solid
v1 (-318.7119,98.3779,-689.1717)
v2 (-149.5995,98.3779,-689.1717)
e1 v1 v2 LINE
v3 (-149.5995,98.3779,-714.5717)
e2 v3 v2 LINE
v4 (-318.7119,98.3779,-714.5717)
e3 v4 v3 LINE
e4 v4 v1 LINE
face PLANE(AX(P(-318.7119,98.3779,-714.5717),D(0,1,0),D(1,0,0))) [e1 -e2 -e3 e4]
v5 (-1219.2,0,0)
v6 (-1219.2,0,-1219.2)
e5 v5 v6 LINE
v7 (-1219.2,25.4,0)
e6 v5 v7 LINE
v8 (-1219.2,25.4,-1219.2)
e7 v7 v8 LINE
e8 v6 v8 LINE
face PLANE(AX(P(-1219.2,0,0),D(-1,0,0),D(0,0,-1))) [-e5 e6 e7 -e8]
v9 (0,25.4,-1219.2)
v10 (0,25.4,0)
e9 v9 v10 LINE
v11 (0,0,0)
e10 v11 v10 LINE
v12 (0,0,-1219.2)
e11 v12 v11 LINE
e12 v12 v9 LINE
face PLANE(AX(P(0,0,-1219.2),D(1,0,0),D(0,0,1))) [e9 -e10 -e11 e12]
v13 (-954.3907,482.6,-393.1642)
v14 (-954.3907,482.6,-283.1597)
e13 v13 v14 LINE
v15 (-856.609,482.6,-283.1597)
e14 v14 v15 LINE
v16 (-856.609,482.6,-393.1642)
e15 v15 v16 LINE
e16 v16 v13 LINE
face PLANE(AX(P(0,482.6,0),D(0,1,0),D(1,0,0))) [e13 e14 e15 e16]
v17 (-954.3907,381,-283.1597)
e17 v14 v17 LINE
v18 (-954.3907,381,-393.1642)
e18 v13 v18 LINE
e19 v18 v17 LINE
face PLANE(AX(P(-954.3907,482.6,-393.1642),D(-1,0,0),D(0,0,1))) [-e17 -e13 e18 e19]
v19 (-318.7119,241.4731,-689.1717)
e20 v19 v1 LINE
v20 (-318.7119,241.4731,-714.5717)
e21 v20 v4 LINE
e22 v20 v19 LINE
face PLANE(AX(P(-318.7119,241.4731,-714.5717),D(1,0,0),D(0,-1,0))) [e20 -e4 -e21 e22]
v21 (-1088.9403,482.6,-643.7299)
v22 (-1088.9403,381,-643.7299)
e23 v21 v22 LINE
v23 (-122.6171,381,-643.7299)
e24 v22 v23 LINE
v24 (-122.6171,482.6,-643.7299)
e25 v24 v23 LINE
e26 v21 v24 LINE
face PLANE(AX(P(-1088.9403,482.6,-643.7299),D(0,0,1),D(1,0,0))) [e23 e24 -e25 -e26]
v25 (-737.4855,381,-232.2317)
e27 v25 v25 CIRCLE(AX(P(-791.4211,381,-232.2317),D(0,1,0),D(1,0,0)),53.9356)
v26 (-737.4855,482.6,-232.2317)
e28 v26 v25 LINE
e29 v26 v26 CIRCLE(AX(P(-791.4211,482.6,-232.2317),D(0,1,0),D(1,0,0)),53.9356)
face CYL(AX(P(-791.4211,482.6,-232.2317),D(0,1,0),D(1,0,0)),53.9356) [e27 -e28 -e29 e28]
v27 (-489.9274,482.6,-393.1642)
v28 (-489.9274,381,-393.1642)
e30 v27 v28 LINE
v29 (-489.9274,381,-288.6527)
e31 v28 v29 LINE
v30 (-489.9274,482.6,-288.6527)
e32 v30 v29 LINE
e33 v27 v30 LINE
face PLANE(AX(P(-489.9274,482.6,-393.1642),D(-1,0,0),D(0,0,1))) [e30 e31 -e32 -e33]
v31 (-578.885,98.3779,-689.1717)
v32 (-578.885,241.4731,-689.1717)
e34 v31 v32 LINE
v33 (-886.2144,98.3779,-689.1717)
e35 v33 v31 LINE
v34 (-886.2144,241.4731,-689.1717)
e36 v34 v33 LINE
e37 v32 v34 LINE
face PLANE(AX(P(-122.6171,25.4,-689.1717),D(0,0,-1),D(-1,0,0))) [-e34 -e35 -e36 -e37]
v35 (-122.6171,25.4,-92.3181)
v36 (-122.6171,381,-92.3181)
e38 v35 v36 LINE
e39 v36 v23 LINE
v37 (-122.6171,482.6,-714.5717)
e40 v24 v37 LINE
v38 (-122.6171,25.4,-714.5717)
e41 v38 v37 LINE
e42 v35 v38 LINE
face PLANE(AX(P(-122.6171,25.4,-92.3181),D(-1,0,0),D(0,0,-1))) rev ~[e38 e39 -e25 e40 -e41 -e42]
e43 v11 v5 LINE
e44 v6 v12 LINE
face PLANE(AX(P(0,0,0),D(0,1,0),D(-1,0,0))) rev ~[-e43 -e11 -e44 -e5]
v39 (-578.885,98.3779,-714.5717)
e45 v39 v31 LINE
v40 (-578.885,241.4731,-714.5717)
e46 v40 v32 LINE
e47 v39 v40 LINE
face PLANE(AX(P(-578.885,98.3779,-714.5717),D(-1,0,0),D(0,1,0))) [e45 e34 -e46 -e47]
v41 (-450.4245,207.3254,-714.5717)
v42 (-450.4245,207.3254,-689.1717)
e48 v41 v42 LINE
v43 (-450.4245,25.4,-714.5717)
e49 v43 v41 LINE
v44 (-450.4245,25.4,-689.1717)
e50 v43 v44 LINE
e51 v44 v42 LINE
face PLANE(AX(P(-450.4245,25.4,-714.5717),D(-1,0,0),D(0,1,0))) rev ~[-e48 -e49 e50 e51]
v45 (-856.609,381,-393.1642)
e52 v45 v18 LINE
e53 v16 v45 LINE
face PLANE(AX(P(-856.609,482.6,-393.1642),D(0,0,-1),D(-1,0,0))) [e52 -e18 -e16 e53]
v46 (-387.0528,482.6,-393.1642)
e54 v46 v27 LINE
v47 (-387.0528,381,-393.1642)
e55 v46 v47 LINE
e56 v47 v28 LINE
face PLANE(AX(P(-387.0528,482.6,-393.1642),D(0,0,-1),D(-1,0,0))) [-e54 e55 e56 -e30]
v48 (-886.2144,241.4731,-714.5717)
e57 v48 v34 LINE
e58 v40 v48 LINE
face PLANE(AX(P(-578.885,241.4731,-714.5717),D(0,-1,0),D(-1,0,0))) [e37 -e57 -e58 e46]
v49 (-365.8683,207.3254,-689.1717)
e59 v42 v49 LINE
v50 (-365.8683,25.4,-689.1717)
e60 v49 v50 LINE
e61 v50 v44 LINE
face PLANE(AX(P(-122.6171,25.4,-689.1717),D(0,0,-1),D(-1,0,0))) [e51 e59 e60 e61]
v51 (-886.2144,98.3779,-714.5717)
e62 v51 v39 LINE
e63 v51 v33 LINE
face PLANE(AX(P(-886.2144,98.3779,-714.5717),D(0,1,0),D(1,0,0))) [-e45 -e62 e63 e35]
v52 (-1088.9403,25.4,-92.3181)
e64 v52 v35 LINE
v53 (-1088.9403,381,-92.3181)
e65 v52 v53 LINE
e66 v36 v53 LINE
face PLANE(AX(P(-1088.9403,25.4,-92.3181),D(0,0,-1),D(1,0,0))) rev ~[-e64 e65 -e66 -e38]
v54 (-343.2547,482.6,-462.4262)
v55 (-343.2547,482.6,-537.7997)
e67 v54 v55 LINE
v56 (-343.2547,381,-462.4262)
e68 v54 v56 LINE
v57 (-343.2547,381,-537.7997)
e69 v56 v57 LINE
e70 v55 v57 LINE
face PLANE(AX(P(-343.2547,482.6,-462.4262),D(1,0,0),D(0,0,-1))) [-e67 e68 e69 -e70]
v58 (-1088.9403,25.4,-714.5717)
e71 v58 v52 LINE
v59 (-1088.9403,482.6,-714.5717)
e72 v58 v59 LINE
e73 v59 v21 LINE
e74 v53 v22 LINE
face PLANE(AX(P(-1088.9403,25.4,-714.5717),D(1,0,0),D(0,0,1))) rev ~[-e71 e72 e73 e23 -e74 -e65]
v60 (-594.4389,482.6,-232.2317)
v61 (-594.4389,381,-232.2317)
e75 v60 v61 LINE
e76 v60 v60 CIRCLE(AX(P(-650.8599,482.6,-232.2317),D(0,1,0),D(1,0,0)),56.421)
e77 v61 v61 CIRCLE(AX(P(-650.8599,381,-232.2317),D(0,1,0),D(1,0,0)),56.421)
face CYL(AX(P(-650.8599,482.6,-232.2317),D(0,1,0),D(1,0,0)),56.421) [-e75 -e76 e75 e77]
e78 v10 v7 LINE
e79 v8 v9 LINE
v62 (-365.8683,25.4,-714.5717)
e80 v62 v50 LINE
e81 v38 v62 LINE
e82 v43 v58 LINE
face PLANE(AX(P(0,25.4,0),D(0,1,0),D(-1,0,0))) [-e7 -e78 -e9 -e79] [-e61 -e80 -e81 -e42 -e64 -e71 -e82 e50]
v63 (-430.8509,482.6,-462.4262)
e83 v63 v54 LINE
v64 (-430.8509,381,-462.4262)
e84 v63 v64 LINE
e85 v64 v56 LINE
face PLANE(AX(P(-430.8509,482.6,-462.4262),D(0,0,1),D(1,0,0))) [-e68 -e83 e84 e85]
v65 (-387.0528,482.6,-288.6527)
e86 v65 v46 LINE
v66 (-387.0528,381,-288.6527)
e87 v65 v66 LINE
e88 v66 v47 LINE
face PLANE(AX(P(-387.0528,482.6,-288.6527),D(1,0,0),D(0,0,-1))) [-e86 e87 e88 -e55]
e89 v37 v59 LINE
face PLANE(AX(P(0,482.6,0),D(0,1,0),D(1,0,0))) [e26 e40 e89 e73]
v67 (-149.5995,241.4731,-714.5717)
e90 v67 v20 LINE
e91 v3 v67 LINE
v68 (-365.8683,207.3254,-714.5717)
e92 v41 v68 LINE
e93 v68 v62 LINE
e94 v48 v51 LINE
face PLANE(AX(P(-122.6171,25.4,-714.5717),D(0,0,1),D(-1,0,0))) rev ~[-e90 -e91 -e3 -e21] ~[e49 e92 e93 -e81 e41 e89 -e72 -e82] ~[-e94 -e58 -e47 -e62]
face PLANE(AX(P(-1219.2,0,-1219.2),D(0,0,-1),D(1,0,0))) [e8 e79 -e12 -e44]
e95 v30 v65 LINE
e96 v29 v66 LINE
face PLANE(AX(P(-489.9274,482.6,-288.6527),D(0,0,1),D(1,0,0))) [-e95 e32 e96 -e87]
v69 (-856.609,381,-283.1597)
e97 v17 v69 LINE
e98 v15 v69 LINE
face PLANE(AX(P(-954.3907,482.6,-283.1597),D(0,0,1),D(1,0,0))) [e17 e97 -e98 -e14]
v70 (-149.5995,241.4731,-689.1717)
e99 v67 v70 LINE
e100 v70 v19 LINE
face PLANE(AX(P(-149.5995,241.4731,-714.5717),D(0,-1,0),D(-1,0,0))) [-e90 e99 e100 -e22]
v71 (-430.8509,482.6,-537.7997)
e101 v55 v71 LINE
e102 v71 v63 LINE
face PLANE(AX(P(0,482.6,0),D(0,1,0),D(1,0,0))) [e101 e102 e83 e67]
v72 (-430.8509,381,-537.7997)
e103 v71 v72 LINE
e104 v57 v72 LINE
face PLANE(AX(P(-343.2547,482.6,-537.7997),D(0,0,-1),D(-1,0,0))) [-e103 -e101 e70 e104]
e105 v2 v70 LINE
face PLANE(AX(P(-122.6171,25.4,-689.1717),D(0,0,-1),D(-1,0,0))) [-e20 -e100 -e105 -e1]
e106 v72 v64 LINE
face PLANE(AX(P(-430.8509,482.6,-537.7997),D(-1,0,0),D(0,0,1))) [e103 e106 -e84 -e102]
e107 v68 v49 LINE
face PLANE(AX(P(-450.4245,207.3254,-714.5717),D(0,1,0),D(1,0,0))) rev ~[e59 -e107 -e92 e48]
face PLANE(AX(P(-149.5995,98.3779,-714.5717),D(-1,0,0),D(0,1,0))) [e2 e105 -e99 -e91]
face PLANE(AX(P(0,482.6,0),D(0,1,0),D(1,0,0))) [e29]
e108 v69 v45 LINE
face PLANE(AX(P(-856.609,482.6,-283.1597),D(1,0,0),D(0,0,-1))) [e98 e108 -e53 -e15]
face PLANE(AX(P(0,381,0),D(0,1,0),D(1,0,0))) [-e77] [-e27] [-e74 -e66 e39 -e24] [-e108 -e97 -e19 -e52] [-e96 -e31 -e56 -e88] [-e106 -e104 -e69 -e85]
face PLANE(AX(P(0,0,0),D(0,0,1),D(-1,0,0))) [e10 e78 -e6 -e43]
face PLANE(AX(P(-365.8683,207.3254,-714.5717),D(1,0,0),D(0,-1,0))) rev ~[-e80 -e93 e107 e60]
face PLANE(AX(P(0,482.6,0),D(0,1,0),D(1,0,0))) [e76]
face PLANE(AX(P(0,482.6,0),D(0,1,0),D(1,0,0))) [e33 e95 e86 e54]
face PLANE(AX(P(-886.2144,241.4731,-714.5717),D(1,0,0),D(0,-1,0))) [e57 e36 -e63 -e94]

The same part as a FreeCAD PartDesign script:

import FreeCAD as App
import Part
import Sketcher

V = App.Vector
Q = App.Units.Quantity


def add_polygon(sketch, points):
    """Adds a closed chain of lines whose ends are joined by coincident constraints."""
    first, n = sketch.GeometryCount, len(points)
    for a, b in zip(points, points[1:] + points[:1]):
        sketch.addGeometry(Part.LineSegment(App.Vector(*a, 0), App.Vector(*b, 0)), False)
    for i in range(n):
        sketch.addConstraint(Sketcher.Constraint("Coincident", first + i, 2, first + (i + 1) % n, 1))

doc = App.newDocument("Part")
params = doc.addObject("Spreadsheet::Sheet", "Params")
for row, (alias, value) in enumerate([
    ("sketch1_width", "48 in"),
    ("pad1_length", "1 in"),
    ("pad2_length", "18 in"),
    ("pocket1_length", "4 in"),
    ("pocket2_length", "1 in"),
], start=1):
    params.set(f"A{row}", alias)
    params.set(f"B{row}", "=" + value)
    params.setAlias(f"B{row}", alias)

body = doc.addObject("PartDesign::Body", "Body")

# Sketch on XZ plane
sketch1 = doc.addObject("Sketcher::SketchObject", "Sketch")
body.addObject(sketch1)
sketch1.AttachmentSupport = (doc.XZ_Plane, [""])
sketch1.MapMode = "FlatFace"
add_polygon(sketch1, [(-1219.2, 0), (0, 0), (0, -1219.2), (-1219.2, -1219.2)])  # lines 0-3
sketch1.addConstraint(Sketcher.Constraint("Horizontal", 0))
sketch1.addConstraint(Sketcher.Constraint("Vertical", 1))
sketch1.addConstraint(Sketcher.Constraint("Horizontal", 2))
sketch1.addConstraint(Sketcher.Constraint("Vertical", 3))
sketch1.addConstraint(Sketcher.Constraint("Coincident", 0, 2, -1, 1))
sketch1.addConstraint(Sketcher.Constraint("Equal", 2, 1))
sketch1.addConstraint(Sketcher.Constraint("DistanceX", 0, 1, 0, 2, Q("48 in")))
sketch1.setExpression("Constraints[10]", "Params.sketch1_width")
pad1 = doc.addObject("PartDesign::Pad", "Pad")
body.addObject(pad1)
pad1.Profile = sketch1
pad1.setExpression("Length", "Params.pad1_length")
pad1.Reversed = True

# Sketch on XZ plane
sketch2 = doc.addObject("Sketcher::SketchObject", "Sketch001")
body.addObject(sketch2)
sketch2.AttachmentSupport = (doc.XZ_Plane, [""])
sketch2.MapMode = "FlatFace"
sketch2.AttachmentOffset = App.Placement(V(0, 0, -1 * 25.4), App.Rotation())
add_polygon(sketch2, [(-1088.9403, -714.5717), (-1088.9403, -92.3181), (-122.6171, -92.3181), (-122.6171, -714.5717)])  # lines 0-3
sketch2.addConstraint(Sketcher.Constraint("Vertical", 0))
sketch2.addConstraint(Sketcher.Constraint("Horizontal", 1))
sketch2.addConstraint(Sketcher.Constraint("Vertical", 2))
sketch2.addConstraint(Sketcher.Constraint("Horizontal", 3))
sketch2.addConstraint(Sketcher.Constraint("DistanceX", 1, 1, 1, 2, 966.3232))
sketch2.addConstraint(Sketcher.Constraint("DistanceY", 0, 1, 0, 2, 622.2536))
sketch2.addConstraint(Sketcher.Constraint("DistanceX", 0, 2, -1, 1, 1088.9403))
sketch2.addConstraint(Sketcher.Constraint("DistanceY", 0, 2, -1, 1, 92.318))
pad2 = doc.addObject("PartDesign::Pad", "Pad001")
body.addObject(pad2)
pad2.Profile = sketch2
pad2.setExpression("Length", "Params.pad2_length")
pad2.Reversed = True

# Sketch on XZ plane
sketch3 = doc.addObject("Sketcher::SketchObject", "Sketch002")
body.addObject(sketch3)
sketch3.AttachmentSupport = (doc.XZ_Plane, [""])
sketch3.MapMode = "FlatFace"
sketch3.AttachmentOffset = App.Placement(V(0, 0, -19 * 25.4), App.Rotation())
add_polygon(sketch3, [(-1088.9403, -643.7299), (-1088.9403, -92.3181), (-122.6171, -92.3181), (-122.6171, -643.7299)])  # lines 0-3
add_polygon(sketch3, [(-856.609, -283.1597), (-954.3907, -283.1597), (-954.3907, -393.1642), (-856.609, -393.1642)])  # lines 4-7
sketch3.addGeometry(Part.Circle(V(-791.4211, -232.2317, 0), V(0, 0, 1), 53.9356), False)  # 8
sketch3.addGeometry(Part.Circle(V(-650.8599, -232.2317, 0), V(0, 0, 1), 56.421), False)  # 9
add_polygon(sketch3, [(-387.0528, -288.6527), (-489.9274, -288.6527), (-489.9274, -393.1642), (-387.0528, -393.1642)])  # lines 10-13
add_polygon(sketch3, [(-343.2547, -462.4262), (-430.8509, -462.4262), (-430.8509, -537.7997), (-343.2547, -537.7997)])  # lines 14-17
sketch3.addConstraint(Sketcher.Constraint("Vertical", 0))
sketch3.addConstraint(Sketcher.Constraint("Horizontal", 1))
sketch3.addConstraint(Sketcher.Constraint("Vertical", 2))
sketch3.addConstraint(Sketcher.Constraint("Horizontal", 3))
sketch3.addConstraint(Sketcher.Constraint("Horizontal", 4))
sketch3.addConstraint(Sketcher.Constraint("Vertical", 5))
sketch3.addConstraint(Sketcher.Constraint("Horizontal", 6))
sketch3.addConstraint(Sketcher.Constraint("Vertical", 7))
sketch3.addConstraint(Sketcher.Constraint("Horizontal", 10))
sketch3.addConstraint(Sketcher.Constraint("Vertical", 11))
sketch3.addConstraint(Sketcher.Constraint("Horizontal", 12))
sketch3.addConstraint(Sketcher.Constraint("Vertical", 13))
sketch3.addConstraint(Sketcher.Constraint("Horizontal", 14))
sketch3.addConstraint(Sketcher.Constraint("Vertical", 15))
sketch3.addConstraint(Sketcher.Constraint("Horizontal", 16))
sketch3.addConstraint(Sketcher.Constraint("Vertical", 17))
sketch3.addConstraint(Sketcher.Constraint("Horizontal", 8, 3, 9, 3))
sketch3.addConstraint(Sketcher.Constraint("Horizontal", 6, 2, 11, 2))
sketch3.addConstraint(Sketcher.Constraint("Diameter", 8, Q("4.2469 in")))
sketch3.addConstraint(Sketcher.Constraint("Diameter", 9, Q("4.4426 in")))
sketch3.addConstraint(Sketcher.Constraint("DistanceX", 4, 2, 1, 2, Q("32.747 in")))
sketch3.addConstraint(Sketcher.Constraint("DistanceX", 1, 1, 1, 2, 966.3232))
sketch3.addConstraint(Sketcher.Constraint("DistanceX", 4, 2, 4, 1, 97.7817))
sketch3.addConstraint(Sketcher.Constraint("DistanceX", 10, 2, 10, 1, 102.8746))
sketch3.addConstraint(Sketcher.Constraint("DistanceX", 14, 2, 14, 1, 87.5962))
sketch3.addConstraint(Sketcher.Constraint("DistanceY", 0, 1, 0, 2, 551.4118))
sketch3.addConstraint(Sketcher.Constraint("DistanceY", 5, 2, 5, 1, 110.0045))
sketch3.addConstraint(Sketcher.Constraint("DistanceY", 11, 2, 11, 1, 104.5115))
sketch3.addConstraint(Sketcher.Constraint("DistanceY", 15, 2, 15, 1, 75.3735))
sketch3.addConstraint(Sketcher.Constraint("DistanceX", 8, 3, -1, 1, Q("31.1583 in")))
sketch3.addConstraint(Sketcher.Constraint("DistanceX", 9, 3, -1, 1, Q("25.6244 in")))
sketch3.addConstraint(Sketcher.Constraint("DistanceY", 2, 2, -1, 1, Q("25.3437 in")))
sketch3.addConstraint(Sketcher.Constraint("DistanceY", 5, 2, -1, 1, Q("15.4789 in")))
sketch3.addConstraint(Sketcher.Constraint("DistanceX", 12, 2, -1, 1, Q("15.2383 in")))
sketch3.addConstraint(Sketcher.Constraint("DistanceY", 8, 3, 0, 2, Q("5.5084 in")))
sketch3.addConstraint(Sketcher.Constraint("DistanceY", 15, 2, 12, 2, Q("5.6943 in")))
sketch3.addConstraint(Sketcher.Constraint("DistanceX", 0, 2, -1, 1, 1088.9403))
sketch3.addConstraint(Sketcher.Constraint("DistanceX", 14, 2, -1, 1, 430.851))
pocket1 = doc.addObject("PartDesign::Pocket", "Pocket")
body.addObject(pocket1)
pocket1.Profile = sketch3
pocket1.setExpression("Length", "Params.pocket1_length")
pocket1.Reversed = True

# Sketch on XY plane
sketch4 = doc.addObject("Sketcher::SketchObject", "Sketch003")
body.addObject(sketch4)
sketch4.AttachmentSupport = (doc.XY_Plane, [""])
sketch4.MapMode = "FlatFace"
sketch4.AttachmentOffset = App.Placement(V(0, 0, -714.5717), App.Rotation())
add_polygon(sketch4, [(-365.8683, 207.3254), (-365.8683, 25.4), (-450.4245, 25.4), (-450.4245, 207.3254)])  # lines 0-3
add_polygon(sketch4, [(-886.2144, 241.4731), (-578.885, 241.4731), (-578.885, 98.3779), (-886.2144, 98.3779)])  # lines 4-7
add_polygon(sketch4, [(-318.7119, 241.4731), (-149.5995, 241.4731), (-149.5995, 98.3779), (-318.7119, 98.3779)])  # lines 8-11
sketch4.addConstraint(Sketcher.Constraint("Vertical", 0))
sketch4.addConstraint(Sketcher.Constraint("Horizontal", 1))
sketch4.addConstraint(Sketcher.Constraint("Vertical", 2))
sketch4.addConstraint(Sketcher.Constraint("Horizontal", 3))
sketch4.addConstraint(Sketcher.Constraint("Horizontal", 4))
sketch4.addConstraint(Sketcher.Constraint("Vertical", 5))
sketch4.addConstraint(Sketcher.Constraint("Horizontal", 6))
sketch4.addConstraint(Sketcher.Constraint("Vertical", 7))
sketch4.addConstraint(Sketcher.Constraint("Horizontal", 8))
sketch4.addConstraint(Sketcher.Constraint("Vertical", 9))
sketch4.addConstraint(Sketcher.Constraint("Horizontal", 10))
sketch4.addConstraint(Sketcher.Constraint("Vertical", 11))
sketch4.addConstraint(Sketcher.Constraint("Horizontal", 7, 2, 8, 2))
sketch4.addConstraint(Sketcher.Constraint("Horizontal", 6, 2, 9, 2))
sketch4.addConstraint(Sketcher.Constraint("DistanceY", -1, 1, 0, 2, Q("1 in")))
sketch4.addConstraint(Sketcher.Constraint("DistanceX", 4, 2, 8, 2, Q("16.901 in")))
sketch4.addConstraint(Sketcher.Constraint("DistanceX", 1, 2, 1, 1, 84.5562))
sketch4.addConstraint(Sketcher.Constraint("DistanceX", 4, 1, 4, 2, 307.3294))
sketch4.addConstraint(Sketcher.Constraint("DistanceX", 8, 1, 8, 2, 169.1124))
sketch4.addConstraint(Sketcher.Constraint("DistanceY", 0, 2, 0, 1, 181.9254))
sketch4.addConstraint(Sketcher.Constraint("DistanceY", 5, 2, 5, 1, 143.0952))
sketch4.addConstraint(Sketcher.Constraint("DistanceX", 4, 2, 2, 2, Q("5.0575 in")))
sketch4.addConstraint(Sketcher.Constraint("DistanceY", 2, 2, 4, 2, Q("1.3444 in")))
sketch4.addConstraint(Sketcher.Constraint("DistanceX", 0, 2, -1, 1, 365.8683))
pocket2 = doc.addObject("PartDesign::Pocket", "Pocket001")
body.addObject(pocket2)
pocket2.Profile = sketch4
pocket2.setExpression("Length", "Params.pocket2_length")
pocket2.Reversed = True

doc.recompute()
